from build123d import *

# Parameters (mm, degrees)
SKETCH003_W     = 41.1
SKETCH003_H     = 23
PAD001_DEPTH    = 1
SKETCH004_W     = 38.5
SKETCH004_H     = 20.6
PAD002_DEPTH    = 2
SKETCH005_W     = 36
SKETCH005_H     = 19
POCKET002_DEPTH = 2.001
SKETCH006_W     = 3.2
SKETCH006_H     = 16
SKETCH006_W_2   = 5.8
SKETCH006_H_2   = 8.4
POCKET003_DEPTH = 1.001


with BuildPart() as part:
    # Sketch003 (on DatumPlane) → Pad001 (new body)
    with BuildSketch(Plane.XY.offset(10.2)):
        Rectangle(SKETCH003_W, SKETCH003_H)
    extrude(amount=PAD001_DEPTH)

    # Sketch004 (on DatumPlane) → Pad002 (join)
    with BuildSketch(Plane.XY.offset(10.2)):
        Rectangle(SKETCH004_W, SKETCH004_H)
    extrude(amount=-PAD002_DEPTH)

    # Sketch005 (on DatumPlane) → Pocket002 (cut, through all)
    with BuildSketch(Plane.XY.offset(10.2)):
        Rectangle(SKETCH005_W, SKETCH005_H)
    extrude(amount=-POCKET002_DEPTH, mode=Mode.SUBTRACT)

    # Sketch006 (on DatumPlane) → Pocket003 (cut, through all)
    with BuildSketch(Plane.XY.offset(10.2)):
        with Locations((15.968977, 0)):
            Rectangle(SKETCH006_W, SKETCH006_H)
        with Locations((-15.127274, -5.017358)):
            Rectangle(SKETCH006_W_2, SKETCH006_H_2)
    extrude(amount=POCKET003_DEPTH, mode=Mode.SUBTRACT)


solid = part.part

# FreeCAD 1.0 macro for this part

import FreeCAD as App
import Part
import Sketcher
Q = App.Units.Quantity


def add_polygon(sketch, points):
    """Adds a closed chain of lines whose ends are joined by coincident constraints."""
    first, n = sketch.GeometryCount, len(points)
    for a, b in zip(points, points[1:] + points[:1]):
        sketch.addGeometry(Part.LineSegment(App.Vector(*a, 0), App.Vector(*b, 0)), False)
    for i in range(n):
        sketch.addConstraint(Sketcher.Constraint("Coincident", first + i, 2, first + (i + 1) % n, 1))

doc = App.newDocument("Part")
body = doc.addObject("PartDesign::Body", "Body")

# Sketch on XY plane
sketch1 = doc.addObject("Sketcher::SketchObject", "Sketch")
body.addObject(sketch1)
sketch1.AttachmentSupport = (doc.XY_Plane, [""])
sketch1.MapMode = "FlatFace"
sketch1.AttachmentOffset = App.Placement(App.Vector(0, 0, 10.2), App.Rotation())
add_polygon(sketch1, [(-21, 12), (-21, -12), (21, -12), (21, 12)])  # lines 0-3
sketch1.addConstraint([
    Sketcher.Constraint("Vertical", 0),
    Sketcher.Constraint("Horizontal", 1),
    Sketcher.Constraint("Vertical", 2),
    Sketcher.Constraint("Horizontal", 3),
    Sketcher.Constraint("Symmetric", 0, 2, 2, 2, -1, 1),
    Sketcher.Constraint("DistanceY", 0, 2, 0, 1, Q("23 mm")),
    Sketcher.Constraint("DistanceX", 1, 1, 1, 2, Q("41.1 mm")),
])
pad1 = doc.addObject("PartDesign::Pad", "Pad")
body.addObject(pad1)
pad1.Profile = sketch1
pad1.Length = 1

# Sketch on XY plane
sketch2 = doc.addObject("Sketcher::SketchObject", "Sketch001")
body.addObject(sketch2)
sketch2.AttachmentSupport = (doc.XY_Plane, [""])
sketch2.MapMode = "FlatFace"
sketch2.AttachmentOffset = App.Placement(App.Vector(0, 0, 10.2), App.Rotation())
add_polygon(sketch2, [(-19, 10), (-19, -10), (19, -10), (19, 10)])  # lines 0-3
sketch2.addConstraint([
    Sketcher.Constraint("Vertical", 0),
    Sketcher.Constraint("Horizontal", 1),
    Sketcher.Constraint("Vertical", 2),
    Sketcher.Constraint("Horizontal", 3),
    Sketcher.Constraint("Symmetric", 0, 2, 2, 2, -1, 1),
    Sketcher.Constraint("DistanceX", 1, 1, 1, 2, Q("38.5 mm")),
    Sketcher.Constraint("DistanceY", 0, 2, 0, 1, Q("20.6 mm")),
])
pad2 = doc.addObject("PartDesign::Pad", "Pad001")
body.addObject(pad2)
pad2.Profile = sketch2
pad2.Length = 2
pad2.Reversed = True

# Sketch on XY plane
sketch3 = doc.addObject("Sketcher::SketchObject", "Sketch002")
body.addObject(sketch3)
sketch3.AttachmentSupport = (doc.XY_Plane, [""])
sketch3.MapMode = "FlatFace"
sketch3.AttachmentOffset = App.Placement(App.Vector(0, 0, 10.2), App.Rotation())
add_polygon(sketch3, [(-18, 10), (-18, -10), (18, -10), (18, 10)])  # lines 0-3
sketch3.addConstraint([
    Sketcher.Constraint("Vertical", 0),
    Sketcher.Constraint("Horizontal", 1),
    Sketcher.Constraint("Vertical", 2),
    Sketcher.Constraint("Horizontal", 3),
    Sketcher.Constraint("Symmetric", 0, 2, 2, 2, -1, 1),
    Sketcher.Constraint("DistanceX", 1, 1, 1, 2, Q("36 mm")),
    Sketcher.Constraint("DistanceY", 0, 2, 0, 1, Q("19 mm")),
])
pocket1 = doc.addObject("PartDesign::Pocket", "Pocket")
body.addObject(pocket1)
pocket1.Profile = sketch3
pocket1.Type = "ThroughAll"

# Sketch on XY plane
sketch4 = doc.addObject("Sketcher::SketchObject", "Sketch003")
body.addObject(sketch4)
sketch4.AttachmentSupport = (doc.XY_Plane, [""])
sketch4.MapMode = "FlatFace"
sketch4.AttachmentOffset = App.Placement(App.Vector(0, 0, 10.2), App.Rotation())
add_polygon(sketch4, [(14.4, 8), (14.4, -8), (17.6, -8), (17.6, 8)])  # lines 0-3
add_polygon(sketch4, [(-18, -0.8), (-18, -9.2), (-12.2, -9.2), (-12.2, -0.8)])  # lines 4-7
sketch4.addConstraint([
    Sketcher.Constraint("Vertical", 0),
    Sketcher.Constraint("Horizontal", 1),
    Sketcher.Constraint("Vertical", 2),
    Sketcher.Constraint("Horizontal", 3),
    Sketcher.Constraint("Vertical", 4),
    Sketcher.Constraint("Horizontal", 5),
    Sketcher.Constraint("Vertical", 6),
    Sketcher.Constraint("Horizontal", 7),
    Sketcher.Constraint("DistanceY", 0, 2, 0, 1, Q("16 mm")),
    Sketcher.Constraint("DistanceX", 1, 1, 1, 2, Q("3.2 mm")),
    Sketcher.Constraint("DistanceX", 5, 1, 5, 2, Q("5.8 mm")),
    Sketcher.Constraint("DistanceY", 4, 2, 4, 1, Q("8.4 mm")),
    Sketcher.Constraint("DistanceY", 0, 2, -1, 1, Q("8 mm")),
    Sketcher.Constraint("DistanceY", 4, 2, -1, 1, Q("9.217358 mm")),
    Sketcher.Constraint("DistanceX", 4, 2, 0, 2, Q("32.396251 mm")),
    Sketcher.Constraint("DistanceX", -1, 1, 0, 2, Q("14.368977 mm")),
])
pocket2 = doc.addObject("PartDesign::Pocket", "Pocket001")
body.addObject(pocket2)
pocket2.Profile = sketch4
pocket2.Type = "ThroughAll"
pocket2.Reversed = True

doc.recompute()
